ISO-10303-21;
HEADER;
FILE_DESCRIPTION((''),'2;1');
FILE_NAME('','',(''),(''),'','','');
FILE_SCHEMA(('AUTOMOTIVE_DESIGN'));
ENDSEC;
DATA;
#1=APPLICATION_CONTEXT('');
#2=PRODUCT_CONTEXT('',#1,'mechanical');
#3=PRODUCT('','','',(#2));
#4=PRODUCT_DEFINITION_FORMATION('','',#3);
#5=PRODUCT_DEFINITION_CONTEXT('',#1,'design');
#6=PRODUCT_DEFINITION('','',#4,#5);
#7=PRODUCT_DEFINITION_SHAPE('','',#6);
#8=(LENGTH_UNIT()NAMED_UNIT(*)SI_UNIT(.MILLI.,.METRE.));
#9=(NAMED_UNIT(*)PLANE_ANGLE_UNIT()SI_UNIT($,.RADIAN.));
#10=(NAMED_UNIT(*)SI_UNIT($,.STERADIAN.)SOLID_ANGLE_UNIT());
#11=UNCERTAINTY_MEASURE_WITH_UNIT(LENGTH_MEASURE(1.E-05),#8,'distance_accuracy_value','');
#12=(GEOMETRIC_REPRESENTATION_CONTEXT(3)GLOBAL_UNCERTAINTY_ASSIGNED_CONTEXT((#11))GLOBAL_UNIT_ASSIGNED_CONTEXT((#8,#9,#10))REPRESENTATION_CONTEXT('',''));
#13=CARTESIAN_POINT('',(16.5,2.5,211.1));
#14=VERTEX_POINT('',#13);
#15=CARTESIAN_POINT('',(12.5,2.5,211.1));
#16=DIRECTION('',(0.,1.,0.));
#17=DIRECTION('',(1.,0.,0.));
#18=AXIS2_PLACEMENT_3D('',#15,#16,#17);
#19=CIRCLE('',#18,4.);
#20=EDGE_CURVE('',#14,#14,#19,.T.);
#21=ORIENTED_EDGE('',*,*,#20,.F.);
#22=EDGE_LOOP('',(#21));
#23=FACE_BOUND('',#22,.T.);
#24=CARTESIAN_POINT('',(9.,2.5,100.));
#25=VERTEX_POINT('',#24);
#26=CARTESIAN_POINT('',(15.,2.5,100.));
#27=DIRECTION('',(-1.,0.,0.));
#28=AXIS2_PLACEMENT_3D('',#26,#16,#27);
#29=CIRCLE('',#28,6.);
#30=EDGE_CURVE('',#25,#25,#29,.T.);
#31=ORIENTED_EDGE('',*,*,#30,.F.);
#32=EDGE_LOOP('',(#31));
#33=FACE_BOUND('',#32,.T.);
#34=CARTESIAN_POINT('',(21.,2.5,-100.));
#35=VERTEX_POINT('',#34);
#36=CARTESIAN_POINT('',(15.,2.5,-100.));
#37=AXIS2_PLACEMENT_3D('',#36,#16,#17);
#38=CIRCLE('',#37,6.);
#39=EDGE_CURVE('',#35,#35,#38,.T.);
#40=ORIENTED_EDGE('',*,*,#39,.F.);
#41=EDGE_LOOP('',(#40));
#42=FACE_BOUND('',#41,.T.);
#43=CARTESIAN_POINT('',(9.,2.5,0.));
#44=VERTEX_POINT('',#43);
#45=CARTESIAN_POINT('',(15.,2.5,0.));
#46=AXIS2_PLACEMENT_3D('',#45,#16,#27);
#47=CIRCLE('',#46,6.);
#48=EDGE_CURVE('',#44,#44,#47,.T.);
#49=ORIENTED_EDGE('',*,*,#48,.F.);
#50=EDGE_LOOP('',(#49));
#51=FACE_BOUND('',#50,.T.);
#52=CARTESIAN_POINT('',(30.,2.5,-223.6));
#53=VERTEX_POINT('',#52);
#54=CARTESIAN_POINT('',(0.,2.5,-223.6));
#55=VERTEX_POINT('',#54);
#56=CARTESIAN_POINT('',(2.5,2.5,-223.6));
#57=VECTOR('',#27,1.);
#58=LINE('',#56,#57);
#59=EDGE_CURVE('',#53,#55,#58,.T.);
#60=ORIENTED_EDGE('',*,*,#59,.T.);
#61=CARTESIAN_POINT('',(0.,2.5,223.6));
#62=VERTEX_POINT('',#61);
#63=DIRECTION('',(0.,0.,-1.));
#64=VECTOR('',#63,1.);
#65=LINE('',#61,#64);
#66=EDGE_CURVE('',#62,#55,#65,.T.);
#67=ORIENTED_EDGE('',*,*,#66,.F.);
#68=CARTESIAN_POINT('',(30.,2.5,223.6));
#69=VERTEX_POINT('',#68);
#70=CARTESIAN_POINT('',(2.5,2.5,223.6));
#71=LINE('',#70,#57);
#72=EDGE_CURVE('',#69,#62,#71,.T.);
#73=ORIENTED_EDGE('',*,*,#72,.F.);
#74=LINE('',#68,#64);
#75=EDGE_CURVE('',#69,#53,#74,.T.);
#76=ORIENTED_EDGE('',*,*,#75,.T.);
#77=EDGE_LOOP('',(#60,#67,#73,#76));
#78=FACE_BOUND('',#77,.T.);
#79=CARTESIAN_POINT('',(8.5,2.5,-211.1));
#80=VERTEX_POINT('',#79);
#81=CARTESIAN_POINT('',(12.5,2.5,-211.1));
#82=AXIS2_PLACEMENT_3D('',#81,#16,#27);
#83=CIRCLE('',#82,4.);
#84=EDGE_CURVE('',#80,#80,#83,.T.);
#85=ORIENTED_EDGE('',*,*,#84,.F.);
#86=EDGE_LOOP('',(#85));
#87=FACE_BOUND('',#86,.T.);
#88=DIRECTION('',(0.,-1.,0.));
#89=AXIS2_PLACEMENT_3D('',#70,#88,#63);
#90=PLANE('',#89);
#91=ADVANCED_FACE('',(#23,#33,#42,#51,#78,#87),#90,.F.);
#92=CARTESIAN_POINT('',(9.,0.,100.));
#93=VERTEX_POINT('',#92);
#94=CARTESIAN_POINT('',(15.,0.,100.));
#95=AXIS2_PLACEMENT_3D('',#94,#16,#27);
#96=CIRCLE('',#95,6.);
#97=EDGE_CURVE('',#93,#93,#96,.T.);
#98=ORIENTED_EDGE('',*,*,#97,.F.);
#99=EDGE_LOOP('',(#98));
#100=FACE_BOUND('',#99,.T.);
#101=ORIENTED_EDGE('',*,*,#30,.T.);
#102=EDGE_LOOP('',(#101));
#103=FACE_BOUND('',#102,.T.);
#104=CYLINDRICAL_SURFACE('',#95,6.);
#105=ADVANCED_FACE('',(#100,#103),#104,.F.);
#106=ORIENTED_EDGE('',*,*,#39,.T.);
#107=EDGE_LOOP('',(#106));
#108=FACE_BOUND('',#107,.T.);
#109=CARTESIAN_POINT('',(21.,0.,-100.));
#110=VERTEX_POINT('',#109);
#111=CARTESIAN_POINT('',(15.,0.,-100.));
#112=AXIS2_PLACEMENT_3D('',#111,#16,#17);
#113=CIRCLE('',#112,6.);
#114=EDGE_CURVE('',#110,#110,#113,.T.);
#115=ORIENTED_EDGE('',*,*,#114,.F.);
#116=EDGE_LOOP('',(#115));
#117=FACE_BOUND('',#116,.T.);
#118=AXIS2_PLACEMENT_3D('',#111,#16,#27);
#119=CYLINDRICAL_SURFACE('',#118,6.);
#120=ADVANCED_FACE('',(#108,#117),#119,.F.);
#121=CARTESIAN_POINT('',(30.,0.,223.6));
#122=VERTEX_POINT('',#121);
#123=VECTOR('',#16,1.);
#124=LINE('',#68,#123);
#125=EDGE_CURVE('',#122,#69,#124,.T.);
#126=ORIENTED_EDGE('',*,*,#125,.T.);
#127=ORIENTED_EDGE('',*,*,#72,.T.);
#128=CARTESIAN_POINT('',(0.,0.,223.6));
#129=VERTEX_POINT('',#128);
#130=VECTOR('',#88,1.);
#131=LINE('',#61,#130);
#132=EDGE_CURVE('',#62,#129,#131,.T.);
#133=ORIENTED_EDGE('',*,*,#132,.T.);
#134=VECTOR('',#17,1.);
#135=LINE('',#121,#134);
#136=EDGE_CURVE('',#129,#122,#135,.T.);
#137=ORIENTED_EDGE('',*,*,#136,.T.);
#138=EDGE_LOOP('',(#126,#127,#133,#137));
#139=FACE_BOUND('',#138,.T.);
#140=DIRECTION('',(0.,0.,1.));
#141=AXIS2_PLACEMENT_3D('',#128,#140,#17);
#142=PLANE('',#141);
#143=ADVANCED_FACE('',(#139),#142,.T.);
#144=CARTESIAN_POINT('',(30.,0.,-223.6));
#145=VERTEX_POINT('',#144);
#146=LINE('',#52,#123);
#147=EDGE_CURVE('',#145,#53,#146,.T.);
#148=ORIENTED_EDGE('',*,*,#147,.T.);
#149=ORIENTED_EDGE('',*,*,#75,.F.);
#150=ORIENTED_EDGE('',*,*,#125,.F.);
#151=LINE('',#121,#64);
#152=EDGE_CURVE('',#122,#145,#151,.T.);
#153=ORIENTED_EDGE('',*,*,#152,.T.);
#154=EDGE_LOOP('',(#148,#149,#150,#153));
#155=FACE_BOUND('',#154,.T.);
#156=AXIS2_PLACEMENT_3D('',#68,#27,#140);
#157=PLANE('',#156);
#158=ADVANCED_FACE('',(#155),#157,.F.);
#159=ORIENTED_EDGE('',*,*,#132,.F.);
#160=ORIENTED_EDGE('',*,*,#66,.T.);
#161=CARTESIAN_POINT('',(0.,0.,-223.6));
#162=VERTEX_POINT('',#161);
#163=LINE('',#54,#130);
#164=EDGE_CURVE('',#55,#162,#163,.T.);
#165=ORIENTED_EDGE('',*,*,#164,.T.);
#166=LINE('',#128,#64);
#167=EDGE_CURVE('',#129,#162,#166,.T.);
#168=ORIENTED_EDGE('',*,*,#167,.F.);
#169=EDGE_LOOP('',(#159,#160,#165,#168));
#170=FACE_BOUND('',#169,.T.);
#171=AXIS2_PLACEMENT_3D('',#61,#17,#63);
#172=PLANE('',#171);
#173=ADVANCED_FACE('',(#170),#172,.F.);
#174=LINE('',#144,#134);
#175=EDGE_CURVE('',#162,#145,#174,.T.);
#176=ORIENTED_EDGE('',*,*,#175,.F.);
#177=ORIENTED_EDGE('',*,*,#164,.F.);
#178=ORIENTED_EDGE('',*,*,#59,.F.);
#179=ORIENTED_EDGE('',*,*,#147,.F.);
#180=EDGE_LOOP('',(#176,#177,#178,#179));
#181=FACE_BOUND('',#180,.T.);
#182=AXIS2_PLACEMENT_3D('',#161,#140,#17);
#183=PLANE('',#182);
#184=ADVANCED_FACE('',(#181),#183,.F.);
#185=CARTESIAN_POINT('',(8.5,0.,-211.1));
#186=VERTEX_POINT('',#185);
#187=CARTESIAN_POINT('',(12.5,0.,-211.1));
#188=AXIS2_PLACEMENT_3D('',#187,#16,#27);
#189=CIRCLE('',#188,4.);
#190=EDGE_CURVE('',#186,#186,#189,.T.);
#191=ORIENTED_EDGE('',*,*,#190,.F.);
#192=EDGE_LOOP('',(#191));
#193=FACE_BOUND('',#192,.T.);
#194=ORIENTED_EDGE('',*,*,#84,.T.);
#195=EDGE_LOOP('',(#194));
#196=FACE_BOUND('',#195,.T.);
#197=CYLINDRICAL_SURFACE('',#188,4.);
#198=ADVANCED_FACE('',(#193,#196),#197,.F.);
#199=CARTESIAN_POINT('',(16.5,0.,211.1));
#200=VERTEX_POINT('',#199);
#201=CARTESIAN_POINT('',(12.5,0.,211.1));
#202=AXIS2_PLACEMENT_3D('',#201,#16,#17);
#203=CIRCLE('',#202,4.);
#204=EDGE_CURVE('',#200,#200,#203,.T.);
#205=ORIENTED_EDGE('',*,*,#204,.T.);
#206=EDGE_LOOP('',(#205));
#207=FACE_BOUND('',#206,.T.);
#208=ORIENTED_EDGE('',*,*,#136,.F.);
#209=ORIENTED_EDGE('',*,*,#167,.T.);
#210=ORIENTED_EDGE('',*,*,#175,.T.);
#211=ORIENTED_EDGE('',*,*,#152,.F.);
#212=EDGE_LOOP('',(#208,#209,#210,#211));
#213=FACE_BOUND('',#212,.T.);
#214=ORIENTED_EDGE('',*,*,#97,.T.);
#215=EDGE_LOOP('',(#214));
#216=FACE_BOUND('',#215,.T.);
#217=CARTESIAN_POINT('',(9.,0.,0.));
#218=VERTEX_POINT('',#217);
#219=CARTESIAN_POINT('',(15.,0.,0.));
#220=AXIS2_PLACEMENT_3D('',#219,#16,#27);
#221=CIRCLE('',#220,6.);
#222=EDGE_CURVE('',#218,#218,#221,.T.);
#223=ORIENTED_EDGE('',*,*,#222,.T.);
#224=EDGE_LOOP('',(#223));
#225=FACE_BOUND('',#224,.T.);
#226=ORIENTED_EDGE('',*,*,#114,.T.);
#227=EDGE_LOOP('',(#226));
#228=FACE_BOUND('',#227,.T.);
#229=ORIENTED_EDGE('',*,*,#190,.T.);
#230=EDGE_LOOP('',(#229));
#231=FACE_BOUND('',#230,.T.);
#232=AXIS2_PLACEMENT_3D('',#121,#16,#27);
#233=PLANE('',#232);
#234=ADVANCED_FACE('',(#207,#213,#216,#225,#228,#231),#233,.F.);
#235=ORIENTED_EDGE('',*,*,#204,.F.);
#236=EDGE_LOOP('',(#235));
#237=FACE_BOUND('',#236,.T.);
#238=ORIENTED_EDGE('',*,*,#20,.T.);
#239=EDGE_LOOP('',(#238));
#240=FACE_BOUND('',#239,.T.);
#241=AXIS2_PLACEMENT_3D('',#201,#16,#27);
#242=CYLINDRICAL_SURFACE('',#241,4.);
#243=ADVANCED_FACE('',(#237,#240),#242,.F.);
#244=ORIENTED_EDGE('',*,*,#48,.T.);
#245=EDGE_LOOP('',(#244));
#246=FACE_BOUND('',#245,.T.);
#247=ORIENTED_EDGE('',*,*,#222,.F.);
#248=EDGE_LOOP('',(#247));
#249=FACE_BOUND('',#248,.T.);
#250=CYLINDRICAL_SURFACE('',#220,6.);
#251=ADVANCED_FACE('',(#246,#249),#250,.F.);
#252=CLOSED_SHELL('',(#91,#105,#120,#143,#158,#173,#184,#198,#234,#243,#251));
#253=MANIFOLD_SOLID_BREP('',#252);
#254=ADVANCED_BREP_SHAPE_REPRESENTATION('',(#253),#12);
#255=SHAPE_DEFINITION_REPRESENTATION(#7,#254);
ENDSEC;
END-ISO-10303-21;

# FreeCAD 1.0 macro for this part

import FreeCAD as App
import Part
import Sketcher

V = App.Vector
Q = App.Units.Quantity

doc = App.newDocument("Part")
params = doc.addObject("Spreadsheet::Sheet", "Params")
for row, (alias, value) in enumerate([
    ("sketch1_width", "30 mm"),
    ("sketch1_height", "2.5 mm"),
    ("pad1_length", "447.2 mm"),
    ("sketch2_diameter", "8 mm"),
    ("sketch2_diameter2", "12 mm"),
], start=1):
    params.set(f"A{row}", alias)
    params.set(f"B{row}", "=" + value)
    params.setAlias(f"B{row}", alias)

body = doc.addObject("PartDesign::Body", "Body")

sketch1 = body.newObject("Sketcher::SketchObject", "Sketch")
sketch1.AttachmentSupport = (doc.getObject("XY_Plane"), [""])
sketch1.MapMode = "FlatFace"
sketch1.addGeometry(Part.LineSegment(V(0, 2.5, 0), V(0, 0, 0)), False)
sketch1.addGeometry(Part.LineSegment(V(0, 0, 0), V(30, 0, 0)), False)
sketch1.addGeometry(Part.LineSegment(V(30, 0, 0), V(30, 2.5, 0)), False)
sketch1.addGeometry(Part.LineSegment(V(30, 2.5, 0), V(0, 2.5, 0)), False)
sketch1.addConstraint(Sketcher.Constraint("Coincident", 0, 2, 1, 1))
sketch1.addConstraint(Sketcher.Constraint("Coincident", 1, 2, 2, 1))
sketch1.addConstraint(Sketcher.Constraint("Coincident", 2, 2, 3, 1))
sketch1.addConstraint(Sketcher.Constraint("Coincident", 3, 2, 0, 1))
sketch1.addConstraint(Sketcher.Constraint("Vertical", 0))
sketch1.addConstraint(Sketcher.Constraint("Horizontal", 1))
sketch1.addConstraint(Sketcher.Constraint("Vertical", 2))
sketch1.addConstraint(Sketcher.Constraint("Horizontal", 3))
sketch1.addConstraint(Sketcher.Constraint("Coincident", 0, 2, -1, 1))
sketch1.addConstraint(Sketcher.Constraint("DistanceX", 1, 1, 1, 2, Q("30 mm")))
sketch1.addConstraint(Sketcher.Constraint("DistanceY", 0, 2, 0, 1, Q("2.5 mm")))
sketch1.setExpression("Constraints[9]", "Params.sketch1_width")
sketch1.setExpression("Constraints[10]", "Params.sketch1_height")
pad1 = body.newObject("PartDesign::Pad", "Pad")
pad1.Profile = sketch1
pad1.setExpression("Length", "Params.pad1_length")
pad1.Midplane = True

sketch2 = body.newObject("Sketcher::SketchObject", "Sketch001")
sketch2.AttachmentSupport = (doc.getObject("XZ_Plane"), [""])
sketch2.MapMode = "FlatFace"
sketch2.AttachmentOffset = App.Placement(V(0, 0, -2.5), App.Rotation())
sketch2.addGeometry(Part.Circle(V(12.5, -211.1, 0), V(0, 0, 1), 4), False)
sketch2.addGeometry(Part.Circle(V(12.5, 211.1, 0), V(0, 0, 1), 4), False)
sketch2.addGeometry(Part.Circle(V(15, 100, 0), V(0, 0, 1), 6), False)
sketch2.addGeometry(Part.Circle(V(15, -100, 0), V(0, 0, 1), 6), False)
sketch2.addGeometry(Part.Circle(V(15, 0, 0), V(0, 0, 1), 6), False)
sketch2.addConstraint(Sketcher.Constraint("Equal", 0, 1))
sketch2.addConstraint(Sketcher.Constraint("Equal", 2, 3))
sketch2.addConstraint(Sketcher.Constraint("Equal", 3, 4))
sketch2.addConstraint(Sketcher.Constraint("Symmetric", 0, 3, 1, 3, -1))
sketch2.addConstraint(Sketcher.Constraint("Symmetric", 2, 3, 3, 3, -1))
sketch2.addConstraint(Sketcher.Constraint("PointOnObject", 4, 3, -1))
sketch2.addConstraint(Sketcher.Constraint("Vertical", 3, 3, 4, 3))
sketch2.addConstraint(Sketcher.Constraint("Diameter", 0, Q("8 mm")))
sketch2.addConstraint(Sketcher.Constraint("Diameter", 2, Q("12 mm")))
sketch2.addConstraint(Sketcher.Constraint("DistanceX", -1, 1, 2, 3, Q("15 mm")))
sketch2.addConstraint(Sketcher.Constraint("DistanceY", -1, 1, 2, 3, Q("100 mm")))
sketch2.addConstraint(Sketcher.Constraint("DistanceX", -1, 1, 0, 3, Q("12.5 mm")))
sketch2.addConstraint(Sketcher.Constraint("DistanceY", 0, 3, -1, 1, Q("211.1 mm")))
sketch2.setExpression("Constraints[7]", "Params.sketch2_diameter")
sketch2.setExpression("Constraints[8]", "Params.sketch2_diameter2")
pocket1 = body.newObject("PartDesign::Pocket", "Pocket")
pocket1.Profile = sketch2
pocket1.Type = "ThroughAll"
pocket1.Reversed = True

doc.recompute()
